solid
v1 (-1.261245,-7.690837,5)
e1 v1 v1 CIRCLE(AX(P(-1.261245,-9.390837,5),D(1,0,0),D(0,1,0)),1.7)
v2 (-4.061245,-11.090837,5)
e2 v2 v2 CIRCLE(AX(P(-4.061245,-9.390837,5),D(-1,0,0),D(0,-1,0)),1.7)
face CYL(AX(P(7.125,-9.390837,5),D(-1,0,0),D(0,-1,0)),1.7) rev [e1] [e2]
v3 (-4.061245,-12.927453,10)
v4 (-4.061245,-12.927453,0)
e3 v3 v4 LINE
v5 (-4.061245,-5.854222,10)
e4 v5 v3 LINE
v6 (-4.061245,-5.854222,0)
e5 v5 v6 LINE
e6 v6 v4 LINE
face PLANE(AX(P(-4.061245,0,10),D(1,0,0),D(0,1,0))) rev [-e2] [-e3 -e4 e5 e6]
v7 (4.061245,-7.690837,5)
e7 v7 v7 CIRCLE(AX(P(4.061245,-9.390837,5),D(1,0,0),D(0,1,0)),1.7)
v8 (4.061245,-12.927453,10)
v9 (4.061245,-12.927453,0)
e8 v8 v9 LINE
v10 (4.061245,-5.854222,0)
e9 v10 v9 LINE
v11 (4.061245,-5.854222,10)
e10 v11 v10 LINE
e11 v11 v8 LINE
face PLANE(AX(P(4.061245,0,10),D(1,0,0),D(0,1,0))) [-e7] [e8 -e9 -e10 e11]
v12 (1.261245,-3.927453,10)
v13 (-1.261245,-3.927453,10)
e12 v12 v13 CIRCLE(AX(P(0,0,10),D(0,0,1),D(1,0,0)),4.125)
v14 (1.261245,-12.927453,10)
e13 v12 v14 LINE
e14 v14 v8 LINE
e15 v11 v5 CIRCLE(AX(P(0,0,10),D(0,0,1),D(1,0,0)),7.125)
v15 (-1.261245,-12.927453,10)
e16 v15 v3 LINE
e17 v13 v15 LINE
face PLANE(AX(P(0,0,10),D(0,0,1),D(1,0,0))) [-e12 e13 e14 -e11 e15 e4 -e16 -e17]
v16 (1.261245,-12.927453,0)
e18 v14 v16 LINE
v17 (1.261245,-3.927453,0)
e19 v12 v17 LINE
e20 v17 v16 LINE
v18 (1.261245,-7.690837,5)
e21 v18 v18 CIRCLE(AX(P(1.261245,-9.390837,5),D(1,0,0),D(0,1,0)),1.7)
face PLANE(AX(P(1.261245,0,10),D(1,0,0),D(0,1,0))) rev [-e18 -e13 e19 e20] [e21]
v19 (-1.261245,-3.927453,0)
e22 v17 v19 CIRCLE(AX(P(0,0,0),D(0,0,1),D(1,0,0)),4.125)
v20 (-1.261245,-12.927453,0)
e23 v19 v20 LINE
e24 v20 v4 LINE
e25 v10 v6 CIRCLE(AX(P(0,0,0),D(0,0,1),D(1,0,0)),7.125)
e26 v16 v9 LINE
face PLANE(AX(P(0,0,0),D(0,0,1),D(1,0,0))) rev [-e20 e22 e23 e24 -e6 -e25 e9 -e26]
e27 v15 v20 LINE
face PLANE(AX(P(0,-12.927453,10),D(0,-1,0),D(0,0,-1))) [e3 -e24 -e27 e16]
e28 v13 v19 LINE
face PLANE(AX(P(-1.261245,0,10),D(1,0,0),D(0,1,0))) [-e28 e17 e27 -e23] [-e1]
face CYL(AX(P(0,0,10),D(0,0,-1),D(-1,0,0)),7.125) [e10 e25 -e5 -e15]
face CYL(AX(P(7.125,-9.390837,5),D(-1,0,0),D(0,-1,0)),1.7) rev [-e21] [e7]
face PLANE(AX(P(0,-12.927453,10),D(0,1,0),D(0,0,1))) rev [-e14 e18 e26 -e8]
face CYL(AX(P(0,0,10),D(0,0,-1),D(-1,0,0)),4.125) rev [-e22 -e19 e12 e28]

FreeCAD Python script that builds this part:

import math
import FreeCAD as App
import Part
import Sketcher
from FreeCAD import Vector
Q = App.Units.Quantity

doc = App.newDocument("Part")
body = doc.addObject("PartDesign::Body", "Body")

# Sketch on XY plane
sketch1 = body.newObject("Sketcher::SketchObject", "Sketch")
sketch1.AttachmentSupport = (doc.getObject("XY_Plane"), [""])
sketch1.MapMode = "FlatFace"
sketch1.addGeometry([
    Part.ArcOfCircle(Part.Circle(Vector(0, 0, 0), Vector(0, 0, 1), 7.1), math.radians(-55), math.radians(0)),  # 0
    Part.ArcOfCircle(Part.Circle(Vector(0, 0, 0), Vector(0, 0, 1), 7.1), math.radians(0), math.radians(235)),  # 1
    Part.LineSegment(Vector(-4.1, -5.9, 0), Vector(-4.1, -12.9, 0)),  # 2
    Part.LineSegment(Vector(-4.1, -12.9, 0), Vector(-1.3, -12.9, 0)),  # 3
    Part.LineSegment(Vector(-1.3, -12.9, 0), Vector(-1.3, -3.9, 0)),  # 4
    Part.ArcOfCircle(Part.Circle(Vector(0, 0, 0), Vector(0, 0, 1), 4.1), math.radians(0), math.radians(252)),  # 5
    Part.ArcOfCircle(Part.Circle(Vector(0, 0, 0), Vector(0, 0, 1), 4.1), math.radians(-72), math.radians(0)),  # 6
    Part.LineSegment(Vector(1.3, -3.9, 0), Vector(1.3, -12.9, 0)),  # 7
    Part.LineSegment(Vector(1.3, -12.9, 0), Vector(4.1, -12.9, 0)),  # 8
    Part.LineSegment(Vector(4.1, -12.9, 0), Vector(4.1, -5.9, 0)),  # 9
], False)
sketch1.addConstraint([
    Sketcher.Constraint("Tangent", 0, 2, 1, 1),
    Sketcher.Constraint("Coincident", 1, 2, 2, 1),
    Sketcher.Constraint("Coincident", 2, 2, 3, 1),
    Sketcher.Constraint("Coincident", 3, 2, 4, 1),
    Sketcher.Constraint("Coincident", 4, 2, 5, 2),
    Sketcher.Constraint("Tangent", 5, 1, 6, 2),
    Sketcher.Constraint("Coincident", 6, 1, 7, 1),
    Sketcher.Constraint("Coincident", 7, 2, 8, 1),
    Sketcher.Constraint("Coincident", 8, 2, 9, 1),
    Sketcher.Constraint("Coincident", 9, 2, 0, 1),
    Sketcher.Constraint("Vertical", 2),
    Sketcher.Constraint("Horizontal", 3),
    Sketcher.Constraint("Vertical", 4),
    Sketcher.Constraint("Vertical", 7),
    Sketcher.Constraint("Horizontal", 8),
    Sketcher.Constraint("Vertical", 9),
    Sketcher.Constraint("Coincident", 0, 3, -1, 1),
    Sketcher.Constraint("Coincident", 5, 3, -1, 1),
    Sketcher.Constraint("Equal", 0, 1),
    Sketcher.Constraint("Equal", 5, 6),
    Sketcher.Constraint("Symmetric", 3, 2, 7, 2, -2),
    Sketcher.Constraint("PointOnObject", 0, 2, -1),
    Sketcher.Constraint("PointOnObject", 5, 1, -1),
    Sketcher.Constraint("Horizontal", 1, 2, 9, 2),
    Sketcher.Constraint("DistanceY", 4, 1, 4, 2, Q("9 mm")),
    Sketcher.Constraint("DistanceX", 3, 1, 3, 2, Q("2.8 mm")),
    Sketcher.Constraint("Radius", 0, Q("7.125 mm")),
    Sketcher.Constraint("Radius", 5, Q("4.125 mm")),
    Sketcher.Constraint("DistanceY", 2, 2, 2, 1, Q("7.073231 mm")),
])
pad1 = body.newObject("PartDesign::Pad", "Pad")
pad1.Profile = sketch1
pad1.Length = 10

# Sketch on YZ plane
sketch2 = body.newObject("Sketcher::SketchObject", "Sketch001")
sketch2.AttachmentSupport = (doc.getObject("YZ_Plane"), [""])
sketch2.MapMode = "FlatFace"
sketch2.AttachmentOffset = App.Placement(Vector(0, 0, -4.061245), App.Rotation())
sketch2.addGeometry(Part.Circle(Vector(-9.4, 5, 0), Vector(0, 0, 1), 1.7), False)
sketch2.addConstraint([
    Sketcher.Constraint("Diameter", 0, Q("3.4 mm")),
    Sketcher.Constraint("DistanceY", -1, 1, 0, 3, Q("5 mm")),
    Sketcher.Constraint("DistanceX", 0, 3, -1, 1, Q("9.390837 mm")),
])
pocket1 = body.newObject("PartDesign::Pocket", "Pocket")
pocket1.Profile = sketch2
pocket1.Type = "ThroughAll"
pocket1.Reversed = True

doc.recompute()
